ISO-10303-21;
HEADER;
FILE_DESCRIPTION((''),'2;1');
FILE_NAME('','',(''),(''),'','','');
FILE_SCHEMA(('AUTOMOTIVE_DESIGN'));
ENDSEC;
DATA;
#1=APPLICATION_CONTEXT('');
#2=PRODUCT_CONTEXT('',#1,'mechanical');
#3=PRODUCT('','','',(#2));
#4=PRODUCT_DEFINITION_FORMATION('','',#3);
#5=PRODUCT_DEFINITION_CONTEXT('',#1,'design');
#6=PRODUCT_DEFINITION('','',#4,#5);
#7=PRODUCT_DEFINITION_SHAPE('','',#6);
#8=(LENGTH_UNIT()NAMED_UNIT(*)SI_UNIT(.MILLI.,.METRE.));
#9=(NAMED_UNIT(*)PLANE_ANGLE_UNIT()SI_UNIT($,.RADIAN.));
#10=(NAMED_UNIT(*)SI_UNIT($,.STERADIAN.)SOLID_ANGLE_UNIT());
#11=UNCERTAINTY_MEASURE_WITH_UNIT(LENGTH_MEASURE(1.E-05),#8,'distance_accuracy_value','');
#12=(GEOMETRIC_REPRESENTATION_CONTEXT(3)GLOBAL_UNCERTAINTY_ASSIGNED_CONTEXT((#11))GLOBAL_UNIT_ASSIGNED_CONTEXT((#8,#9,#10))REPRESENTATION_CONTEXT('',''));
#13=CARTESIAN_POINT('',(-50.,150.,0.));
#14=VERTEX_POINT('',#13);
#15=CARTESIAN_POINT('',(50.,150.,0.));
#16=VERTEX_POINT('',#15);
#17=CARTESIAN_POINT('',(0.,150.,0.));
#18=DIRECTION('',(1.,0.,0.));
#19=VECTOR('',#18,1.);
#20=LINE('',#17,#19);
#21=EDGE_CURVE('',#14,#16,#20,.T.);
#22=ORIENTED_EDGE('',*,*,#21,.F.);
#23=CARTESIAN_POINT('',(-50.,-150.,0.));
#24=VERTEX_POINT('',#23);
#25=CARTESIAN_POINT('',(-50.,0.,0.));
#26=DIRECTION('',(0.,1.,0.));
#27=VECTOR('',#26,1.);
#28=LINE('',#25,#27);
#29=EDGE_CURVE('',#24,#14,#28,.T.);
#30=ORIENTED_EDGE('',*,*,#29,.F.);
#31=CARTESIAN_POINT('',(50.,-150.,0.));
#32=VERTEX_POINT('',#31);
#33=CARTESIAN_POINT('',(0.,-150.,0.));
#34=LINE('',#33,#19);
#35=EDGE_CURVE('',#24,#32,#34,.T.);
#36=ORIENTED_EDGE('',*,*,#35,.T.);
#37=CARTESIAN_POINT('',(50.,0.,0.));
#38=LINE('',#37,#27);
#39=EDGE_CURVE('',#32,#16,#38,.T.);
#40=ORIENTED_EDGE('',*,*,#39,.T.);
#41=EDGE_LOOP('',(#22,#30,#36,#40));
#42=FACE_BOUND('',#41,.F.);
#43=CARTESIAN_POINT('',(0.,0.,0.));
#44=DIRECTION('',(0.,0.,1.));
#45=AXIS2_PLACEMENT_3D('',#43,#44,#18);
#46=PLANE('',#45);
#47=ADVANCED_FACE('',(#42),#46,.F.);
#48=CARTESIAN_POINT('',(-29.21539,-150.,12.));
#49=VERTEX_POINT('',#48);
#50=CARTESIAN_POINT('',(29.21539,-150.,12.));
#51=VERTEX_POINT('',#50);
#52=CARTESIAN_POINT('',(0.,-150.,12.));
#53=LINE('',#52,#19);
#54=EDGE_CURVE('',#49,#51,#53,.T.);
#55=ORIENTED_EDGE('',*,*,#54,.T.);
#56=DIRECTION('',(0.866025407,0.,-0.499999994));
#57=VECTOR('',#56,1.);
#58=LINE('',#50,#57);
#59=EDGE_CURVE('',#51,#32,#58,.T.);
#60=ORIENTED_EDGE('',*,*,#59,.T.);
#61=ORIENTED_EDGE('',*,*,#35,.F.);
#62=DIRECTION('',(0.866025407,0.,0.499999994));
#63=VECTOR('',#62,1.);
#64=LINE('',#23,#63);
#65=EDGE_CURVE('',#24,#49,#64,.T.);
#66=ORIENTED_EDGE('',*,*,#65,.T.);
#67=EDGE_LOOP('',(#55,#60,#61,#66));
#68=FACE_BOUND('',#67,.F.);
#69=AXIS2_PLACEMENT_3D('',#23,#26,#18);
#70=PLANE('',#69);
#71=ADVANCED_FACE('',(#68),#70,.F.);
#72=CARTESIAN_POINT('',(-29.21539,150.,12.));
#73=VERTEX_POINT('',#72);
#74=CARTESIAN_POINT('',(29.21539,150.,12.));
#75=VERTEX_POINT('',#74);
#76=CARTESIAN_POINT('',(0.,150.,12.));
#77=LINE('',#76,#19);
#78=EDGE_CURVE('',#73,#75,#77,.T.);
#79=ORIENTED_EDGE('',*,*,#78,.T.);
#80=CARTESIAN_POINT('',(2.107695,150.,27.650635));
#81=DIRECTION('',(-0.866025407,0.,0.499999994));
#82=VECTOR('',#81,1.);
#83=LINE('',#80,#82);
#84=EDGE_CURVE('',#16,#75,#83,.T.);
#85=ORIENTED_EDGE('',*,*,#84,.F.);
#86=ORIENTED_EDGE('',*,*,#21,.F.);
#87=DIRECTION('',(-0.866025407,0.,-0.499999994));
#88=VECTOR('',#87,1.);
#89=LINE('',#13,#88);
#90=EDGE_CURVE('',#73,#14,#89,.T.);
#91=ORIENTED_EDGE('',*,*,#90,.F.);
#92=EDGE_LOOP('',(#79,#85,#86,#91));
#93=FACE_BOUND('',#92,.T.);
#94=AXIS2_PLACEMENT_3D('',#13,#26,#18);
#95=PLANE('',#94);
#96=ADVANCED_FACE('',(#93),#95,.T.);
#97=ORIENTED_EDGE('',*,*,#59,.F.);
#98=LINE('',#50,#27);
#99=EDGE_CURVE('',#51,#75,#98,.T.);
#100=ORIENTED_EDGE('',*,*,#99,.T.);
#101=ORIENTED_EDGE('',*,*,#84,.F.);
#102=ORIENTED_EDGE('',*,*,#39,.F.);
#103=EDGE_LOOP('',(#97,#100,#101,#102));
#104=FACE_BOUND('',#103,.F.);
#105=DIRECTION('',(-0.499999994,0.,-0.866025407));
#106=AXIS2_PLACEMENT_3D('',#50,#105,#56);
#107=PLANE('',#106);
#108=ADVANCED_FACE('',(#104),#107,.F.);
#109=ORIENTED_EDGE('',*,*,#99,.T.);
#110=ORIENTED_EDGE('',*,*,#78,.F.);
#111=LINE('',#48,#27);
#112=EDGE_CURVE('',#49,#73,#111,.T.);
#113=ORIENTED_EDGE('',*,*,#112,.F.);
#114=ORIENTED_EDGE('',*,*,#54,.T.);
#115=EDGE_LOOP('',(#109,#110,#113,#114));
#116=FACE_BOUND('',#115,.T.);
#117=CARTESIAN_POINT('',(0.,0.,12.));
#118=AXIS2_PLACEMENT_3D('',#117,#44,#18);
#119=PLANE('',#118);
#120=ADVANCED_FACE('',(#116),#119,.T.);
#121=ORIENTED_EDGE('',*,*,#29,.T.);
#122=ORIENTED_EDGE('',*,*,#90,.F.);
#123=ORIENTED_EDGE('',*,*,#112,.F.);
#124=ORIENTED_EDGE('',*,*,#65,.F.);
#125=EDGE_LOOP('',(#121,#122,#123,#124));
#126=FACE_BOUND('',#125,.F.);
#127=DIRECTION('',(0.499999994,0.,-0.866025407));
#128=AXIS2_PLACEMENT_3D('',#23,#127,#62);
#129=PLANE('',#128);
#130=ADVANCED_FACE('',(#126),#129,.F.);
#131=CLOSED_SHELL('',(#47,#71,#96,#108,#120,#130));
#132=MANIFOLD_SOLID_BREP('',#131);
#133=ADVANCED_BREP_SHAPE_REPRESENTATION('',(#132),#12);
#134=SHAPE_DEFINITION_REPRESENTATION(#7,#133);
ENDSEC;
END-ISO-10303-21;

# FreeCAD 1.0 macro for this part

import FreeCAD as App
import Part
import Sketcher

V = App.Vector
Q = App.Units.Quantity


def add_polygon(sketch, points):
    """Adds a closed chain of lines whose ends are joined by coincident constraints."""
    first, n = sketch.GeometryCount, len(points)
    for a, b in zip(points, points[1:] + points[:1]):
        sketch.addGeometry(Part.LineSegment(App.Vector(*a, 0), App.Vector(*b, 0)), False)
    for i in range(n):
        sketch.addConstraint(Sketcher.Constraint("Coincident", first + i, 2, first + (i + 1) % n, 1))

doc = App.newDocument("Part")
params = doc.addObject("Spreadsheet::Sheet", "Params")
for row, (alias, value) in enumerate([
    ("sketch1_width", "100 mm"),
    ("sketch1_height", "300 mm"),
    ("pad1_length", "12 mm"),
    ("sketch2_height", "12 mm"),
], start=1):
    params.set(f"A{row}", alias)
    params.set(f"B{row}", "=" + value)
    params.setAlias(f"B{row}", alias)

body = doc.addObject("PartDesign::Body", "Body")

# Sketch on XY plane
sketch1 = doc.addObject("Sketcher::SketchObject", "Sketch")
body.addObject(sketch1)
sketch1.AttachmentSupport = (doc.XY_Plane, [""])
sketch1.MapMode = "FlatFace"
add_polygon(sketch1, [(-50, 150), (-50, -150), (50, -150), (50, 150)])  # lines 0-3
sketch1.addConstraint([
    Sketcher.Constraint("Vertical", 0),
    Sketcher.Constraint("Horizontal", 1),
    Sketcher.Constraint("Vertical", 2),
    Sketcher.Constraint("Horizontal", 3),
    Sketcher.Constraint("Symmetric", 0, 2, 2, 2, -1, 1),
    Sketcher.Constraint("DistanceX", 1, 1, 1, 2, Q("100 mm")),
    Sketcher.Constraint("DistanceY", 0, 2, 0, 1, Q("300 mm")),
])
sketch1.setExpression("Constraints[9]", "Params.sketch1_width")
sketch1.setExpression("Constraints[10]", "Params.sketch1_height")
pad1 = doc.addObject("PartDesign::Pad", "Pad")
body.addObject(pad1)
pad1.Profile = sketch1
pad1.setExpression("Length", "Params.pad1_length")

# Sketch on XZ plane
sketch2 = doc.addObject("Sketcher::SketchObject", "Sketch001")
body.addObject(sketch2)
sketch2.AttachmentSupport = (doc.XZ_Plane, [""])
sketch2.MapMode = "FlatFace"
sketch2.AttachmentOffset = App.Placement(V(0, 0, 150), App.Rotation())
add_polygon(sketch2, [(50, 0), (50, 12), (29, 12)])  # lines 0-2
add_polygon(sketch2, [(-29, 12), (-50, 12), (-50, 0)])  # lines 3-5
sketch2.addConstraint([
    Sketcher.Constraint("Vertical", 0),
    Sketcher.Constraint("Horizontal", 1),
    Sketcher.Constraint("Horizontal", 3),
    Sketcher.Constraint("Vertical", 4),
    Sketcher.Constraint("Symmetric", 2, 2, 4, 2, -1, 1),
    Sketcher.Constraint("Symmetric", 1, 2, 5, 2, -2),
    Sketcher.Constraint("PointOnObject", 2, 2, -1),
    Sketcher.Constraint("DistanceY", 0, 1, 0, 2, Q("12 mm")),
    Sketcher.Constraint("Angle", 2, Q("-30 deg")),
    Sketcher.Constraint("DistanceX", -1, 1, 0, 2, Q("50 mm")),
])
sketch2.setExpression("Constraints[13]", "Params.sketch2_height")
pocket1 = doc.addObject("PartDesign::Pocket", "Pocket")
body.addObject(pocket1)
pocket1.Profile = sketch2
pocket1.Type = "ThroughAll"

doc.recompute()
